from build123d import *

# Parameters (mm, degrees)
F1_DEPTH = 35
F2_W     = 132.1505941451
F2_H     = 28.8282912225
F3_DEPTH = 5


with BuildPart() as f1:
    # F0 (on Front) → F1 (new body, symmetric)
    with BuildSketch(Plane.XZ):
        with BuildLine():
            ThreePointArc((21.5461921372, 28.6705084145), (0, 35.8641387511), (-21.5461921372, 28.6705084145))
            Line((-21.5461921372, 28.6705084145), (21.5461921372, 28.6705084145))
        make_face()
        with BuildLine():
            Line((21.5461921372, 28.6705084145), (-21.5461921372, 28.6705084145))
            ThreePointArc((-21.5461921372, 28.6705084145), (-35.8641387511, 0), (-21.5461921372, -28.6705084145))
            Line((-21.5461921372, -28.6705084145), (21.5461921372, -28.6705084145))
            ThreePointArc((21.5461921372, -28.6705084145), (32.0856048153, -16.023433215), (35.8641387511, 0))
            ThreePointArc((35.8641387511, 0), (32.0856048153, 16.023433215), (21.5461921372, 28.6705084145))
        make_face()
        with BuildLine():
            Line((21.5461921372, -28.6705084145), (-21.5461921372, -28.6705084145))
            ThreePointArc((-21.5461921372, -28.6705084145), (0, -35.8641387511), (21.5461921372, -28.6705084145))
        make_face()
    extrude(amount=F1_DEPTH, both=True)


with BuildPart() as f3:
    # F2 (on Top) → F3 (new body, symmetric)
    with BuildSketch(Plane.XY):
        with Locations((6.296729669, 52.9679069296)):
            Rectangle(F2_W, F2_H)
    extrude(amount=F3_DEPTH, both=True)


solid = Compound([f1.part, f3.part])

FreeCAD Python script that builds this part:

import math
import FreeCAD as App
import Part
import Sketcher


def add_polygon(sketch, points):
    """Adds a closed chain of lines whose ends are joined by coincident constraints."""
    first, n = sketch.GeometryCount, len(points)
    for a, b in zip(points, points[1:] + points[:1]):
        sketch.addGeometry(Part.LineSegment(App.Vector(*a, 0), App.Vector(*b, 0)), False)
    for i in range(n):
        sketch.addConstraint(Sketcher.Constraint("Coincident", first + i, 2, first + (i + 1) % n, 1))

doc = App.newDocument("Part")
body = doc.addObject("PartDesign::Body", "Body")

sketch1 = doc.addObject("Sketcher::SketchObject", "Sketch")
body.addObject(sketch1)
sketch1.AttachmentSupport = (doc.XZ_Plane, [""])
sketch1.MapMode = "FlatFace"
sketch1.addGeometry(Part.ArcOfCircle(Part.Circle(App.Vector(0, 0, 0), App.Vector(0, 0, 1), 36), math.radians(127), math.radians(233)), False)
sketch1.addGeometry(Part.ArcOfCircle(Part.Circle(App.Vector(0, 0, 0), App.Vector(0, 0, 1), 36), math.radians(-127), math.radians(0)), False)
sketch1.addGeometry(Part.ArcOfCircle(Part.Circle(App.Vector(0, 0, 0), App.Vector(0, 0, 1), 36), math.radians(0), math.radians(127)), False)
sketch1.addConstraint(Sketcher.Constraint("Tangent", 0, 2, 1, 1))
sketch1.addConstraint(Sketcher.Constraint("Tangent", 1, 2, 2, 1))
sketch1.addConstraint(Sketcher.Constraint("Tangent", 2, 2, 0, 1))
sketch1.addConstraint(Sketcher.Constraint("Coincident", 0, 3, -1, 1))
sketch1.addConstraint(Sketcher.Constraint("PointOnObject", 1, 2, -1))
sketch1.addConstraint(Sketcher.Constraint("Vertical", 0, 2, 2, 2))
sketch1.addConstraint(Sketcher.Constraint("Radius", 0, 35.864139))
sketch1.addConstraint(Sketcher.Constraint("DistanceY", 0, 2, -1, 1, 28.670508))
pad1 = doc.addObject("PartDesign::Pad", "Pad")
body.addObject(pad1)
pad1.Profile = sketch1
pad1.Length = 70
pad1.Midplane = True
body2 = doc.addObject("PartDesign::Body", "Body001")

sketch2 = doc.addObject("Sketcher::SketchObject", "Sketch001")
body2.addObject(sketch2)
sketch2.AttachmentSupport = (doc.getObject("XY_Plane001"), [""])
sketch2.MapMode = "FlatFace"
add_polygon(sketch2, [(-60, 67), (-60, 39), (72, 39), (72, 67)])
sketch2.addConstraint(Sketcher.Constraint("Vertical", 0))
sketch2.addConstraint(Sketcher.Constraint("Horizontal", 1))
sketch2.addConstraint(Sketcher.Constraint("Vertical", 2))
sketch2.addConstraint(Sketcher.Constraint("Horizontal", 3))
sketch2.addConstraint(Sketcher.Constraint("DistanceY", 0, 2, 0, 1, 28.828291))
sketch2.addConstraint(Sketcher.Constraint("DistanceX", 1, 1, 1, 2, 132.150594))
sketch2.addConstraint(Sketcher.Constraint("DistanceY", -1, 1, 0, 2, 38.553761))
sketch2.addConstraint(Sketcher.Constraint("DistanceX", 0, 2, -1, 1, 59.778567))
pad2 = doc.addObject("PartDesign::Pad", "Pad001")
body2.addObject(pad2)
pad2.Profile = sketch2
pad2.Length = 10
pad2.Midplane = True

doc.recompute()
